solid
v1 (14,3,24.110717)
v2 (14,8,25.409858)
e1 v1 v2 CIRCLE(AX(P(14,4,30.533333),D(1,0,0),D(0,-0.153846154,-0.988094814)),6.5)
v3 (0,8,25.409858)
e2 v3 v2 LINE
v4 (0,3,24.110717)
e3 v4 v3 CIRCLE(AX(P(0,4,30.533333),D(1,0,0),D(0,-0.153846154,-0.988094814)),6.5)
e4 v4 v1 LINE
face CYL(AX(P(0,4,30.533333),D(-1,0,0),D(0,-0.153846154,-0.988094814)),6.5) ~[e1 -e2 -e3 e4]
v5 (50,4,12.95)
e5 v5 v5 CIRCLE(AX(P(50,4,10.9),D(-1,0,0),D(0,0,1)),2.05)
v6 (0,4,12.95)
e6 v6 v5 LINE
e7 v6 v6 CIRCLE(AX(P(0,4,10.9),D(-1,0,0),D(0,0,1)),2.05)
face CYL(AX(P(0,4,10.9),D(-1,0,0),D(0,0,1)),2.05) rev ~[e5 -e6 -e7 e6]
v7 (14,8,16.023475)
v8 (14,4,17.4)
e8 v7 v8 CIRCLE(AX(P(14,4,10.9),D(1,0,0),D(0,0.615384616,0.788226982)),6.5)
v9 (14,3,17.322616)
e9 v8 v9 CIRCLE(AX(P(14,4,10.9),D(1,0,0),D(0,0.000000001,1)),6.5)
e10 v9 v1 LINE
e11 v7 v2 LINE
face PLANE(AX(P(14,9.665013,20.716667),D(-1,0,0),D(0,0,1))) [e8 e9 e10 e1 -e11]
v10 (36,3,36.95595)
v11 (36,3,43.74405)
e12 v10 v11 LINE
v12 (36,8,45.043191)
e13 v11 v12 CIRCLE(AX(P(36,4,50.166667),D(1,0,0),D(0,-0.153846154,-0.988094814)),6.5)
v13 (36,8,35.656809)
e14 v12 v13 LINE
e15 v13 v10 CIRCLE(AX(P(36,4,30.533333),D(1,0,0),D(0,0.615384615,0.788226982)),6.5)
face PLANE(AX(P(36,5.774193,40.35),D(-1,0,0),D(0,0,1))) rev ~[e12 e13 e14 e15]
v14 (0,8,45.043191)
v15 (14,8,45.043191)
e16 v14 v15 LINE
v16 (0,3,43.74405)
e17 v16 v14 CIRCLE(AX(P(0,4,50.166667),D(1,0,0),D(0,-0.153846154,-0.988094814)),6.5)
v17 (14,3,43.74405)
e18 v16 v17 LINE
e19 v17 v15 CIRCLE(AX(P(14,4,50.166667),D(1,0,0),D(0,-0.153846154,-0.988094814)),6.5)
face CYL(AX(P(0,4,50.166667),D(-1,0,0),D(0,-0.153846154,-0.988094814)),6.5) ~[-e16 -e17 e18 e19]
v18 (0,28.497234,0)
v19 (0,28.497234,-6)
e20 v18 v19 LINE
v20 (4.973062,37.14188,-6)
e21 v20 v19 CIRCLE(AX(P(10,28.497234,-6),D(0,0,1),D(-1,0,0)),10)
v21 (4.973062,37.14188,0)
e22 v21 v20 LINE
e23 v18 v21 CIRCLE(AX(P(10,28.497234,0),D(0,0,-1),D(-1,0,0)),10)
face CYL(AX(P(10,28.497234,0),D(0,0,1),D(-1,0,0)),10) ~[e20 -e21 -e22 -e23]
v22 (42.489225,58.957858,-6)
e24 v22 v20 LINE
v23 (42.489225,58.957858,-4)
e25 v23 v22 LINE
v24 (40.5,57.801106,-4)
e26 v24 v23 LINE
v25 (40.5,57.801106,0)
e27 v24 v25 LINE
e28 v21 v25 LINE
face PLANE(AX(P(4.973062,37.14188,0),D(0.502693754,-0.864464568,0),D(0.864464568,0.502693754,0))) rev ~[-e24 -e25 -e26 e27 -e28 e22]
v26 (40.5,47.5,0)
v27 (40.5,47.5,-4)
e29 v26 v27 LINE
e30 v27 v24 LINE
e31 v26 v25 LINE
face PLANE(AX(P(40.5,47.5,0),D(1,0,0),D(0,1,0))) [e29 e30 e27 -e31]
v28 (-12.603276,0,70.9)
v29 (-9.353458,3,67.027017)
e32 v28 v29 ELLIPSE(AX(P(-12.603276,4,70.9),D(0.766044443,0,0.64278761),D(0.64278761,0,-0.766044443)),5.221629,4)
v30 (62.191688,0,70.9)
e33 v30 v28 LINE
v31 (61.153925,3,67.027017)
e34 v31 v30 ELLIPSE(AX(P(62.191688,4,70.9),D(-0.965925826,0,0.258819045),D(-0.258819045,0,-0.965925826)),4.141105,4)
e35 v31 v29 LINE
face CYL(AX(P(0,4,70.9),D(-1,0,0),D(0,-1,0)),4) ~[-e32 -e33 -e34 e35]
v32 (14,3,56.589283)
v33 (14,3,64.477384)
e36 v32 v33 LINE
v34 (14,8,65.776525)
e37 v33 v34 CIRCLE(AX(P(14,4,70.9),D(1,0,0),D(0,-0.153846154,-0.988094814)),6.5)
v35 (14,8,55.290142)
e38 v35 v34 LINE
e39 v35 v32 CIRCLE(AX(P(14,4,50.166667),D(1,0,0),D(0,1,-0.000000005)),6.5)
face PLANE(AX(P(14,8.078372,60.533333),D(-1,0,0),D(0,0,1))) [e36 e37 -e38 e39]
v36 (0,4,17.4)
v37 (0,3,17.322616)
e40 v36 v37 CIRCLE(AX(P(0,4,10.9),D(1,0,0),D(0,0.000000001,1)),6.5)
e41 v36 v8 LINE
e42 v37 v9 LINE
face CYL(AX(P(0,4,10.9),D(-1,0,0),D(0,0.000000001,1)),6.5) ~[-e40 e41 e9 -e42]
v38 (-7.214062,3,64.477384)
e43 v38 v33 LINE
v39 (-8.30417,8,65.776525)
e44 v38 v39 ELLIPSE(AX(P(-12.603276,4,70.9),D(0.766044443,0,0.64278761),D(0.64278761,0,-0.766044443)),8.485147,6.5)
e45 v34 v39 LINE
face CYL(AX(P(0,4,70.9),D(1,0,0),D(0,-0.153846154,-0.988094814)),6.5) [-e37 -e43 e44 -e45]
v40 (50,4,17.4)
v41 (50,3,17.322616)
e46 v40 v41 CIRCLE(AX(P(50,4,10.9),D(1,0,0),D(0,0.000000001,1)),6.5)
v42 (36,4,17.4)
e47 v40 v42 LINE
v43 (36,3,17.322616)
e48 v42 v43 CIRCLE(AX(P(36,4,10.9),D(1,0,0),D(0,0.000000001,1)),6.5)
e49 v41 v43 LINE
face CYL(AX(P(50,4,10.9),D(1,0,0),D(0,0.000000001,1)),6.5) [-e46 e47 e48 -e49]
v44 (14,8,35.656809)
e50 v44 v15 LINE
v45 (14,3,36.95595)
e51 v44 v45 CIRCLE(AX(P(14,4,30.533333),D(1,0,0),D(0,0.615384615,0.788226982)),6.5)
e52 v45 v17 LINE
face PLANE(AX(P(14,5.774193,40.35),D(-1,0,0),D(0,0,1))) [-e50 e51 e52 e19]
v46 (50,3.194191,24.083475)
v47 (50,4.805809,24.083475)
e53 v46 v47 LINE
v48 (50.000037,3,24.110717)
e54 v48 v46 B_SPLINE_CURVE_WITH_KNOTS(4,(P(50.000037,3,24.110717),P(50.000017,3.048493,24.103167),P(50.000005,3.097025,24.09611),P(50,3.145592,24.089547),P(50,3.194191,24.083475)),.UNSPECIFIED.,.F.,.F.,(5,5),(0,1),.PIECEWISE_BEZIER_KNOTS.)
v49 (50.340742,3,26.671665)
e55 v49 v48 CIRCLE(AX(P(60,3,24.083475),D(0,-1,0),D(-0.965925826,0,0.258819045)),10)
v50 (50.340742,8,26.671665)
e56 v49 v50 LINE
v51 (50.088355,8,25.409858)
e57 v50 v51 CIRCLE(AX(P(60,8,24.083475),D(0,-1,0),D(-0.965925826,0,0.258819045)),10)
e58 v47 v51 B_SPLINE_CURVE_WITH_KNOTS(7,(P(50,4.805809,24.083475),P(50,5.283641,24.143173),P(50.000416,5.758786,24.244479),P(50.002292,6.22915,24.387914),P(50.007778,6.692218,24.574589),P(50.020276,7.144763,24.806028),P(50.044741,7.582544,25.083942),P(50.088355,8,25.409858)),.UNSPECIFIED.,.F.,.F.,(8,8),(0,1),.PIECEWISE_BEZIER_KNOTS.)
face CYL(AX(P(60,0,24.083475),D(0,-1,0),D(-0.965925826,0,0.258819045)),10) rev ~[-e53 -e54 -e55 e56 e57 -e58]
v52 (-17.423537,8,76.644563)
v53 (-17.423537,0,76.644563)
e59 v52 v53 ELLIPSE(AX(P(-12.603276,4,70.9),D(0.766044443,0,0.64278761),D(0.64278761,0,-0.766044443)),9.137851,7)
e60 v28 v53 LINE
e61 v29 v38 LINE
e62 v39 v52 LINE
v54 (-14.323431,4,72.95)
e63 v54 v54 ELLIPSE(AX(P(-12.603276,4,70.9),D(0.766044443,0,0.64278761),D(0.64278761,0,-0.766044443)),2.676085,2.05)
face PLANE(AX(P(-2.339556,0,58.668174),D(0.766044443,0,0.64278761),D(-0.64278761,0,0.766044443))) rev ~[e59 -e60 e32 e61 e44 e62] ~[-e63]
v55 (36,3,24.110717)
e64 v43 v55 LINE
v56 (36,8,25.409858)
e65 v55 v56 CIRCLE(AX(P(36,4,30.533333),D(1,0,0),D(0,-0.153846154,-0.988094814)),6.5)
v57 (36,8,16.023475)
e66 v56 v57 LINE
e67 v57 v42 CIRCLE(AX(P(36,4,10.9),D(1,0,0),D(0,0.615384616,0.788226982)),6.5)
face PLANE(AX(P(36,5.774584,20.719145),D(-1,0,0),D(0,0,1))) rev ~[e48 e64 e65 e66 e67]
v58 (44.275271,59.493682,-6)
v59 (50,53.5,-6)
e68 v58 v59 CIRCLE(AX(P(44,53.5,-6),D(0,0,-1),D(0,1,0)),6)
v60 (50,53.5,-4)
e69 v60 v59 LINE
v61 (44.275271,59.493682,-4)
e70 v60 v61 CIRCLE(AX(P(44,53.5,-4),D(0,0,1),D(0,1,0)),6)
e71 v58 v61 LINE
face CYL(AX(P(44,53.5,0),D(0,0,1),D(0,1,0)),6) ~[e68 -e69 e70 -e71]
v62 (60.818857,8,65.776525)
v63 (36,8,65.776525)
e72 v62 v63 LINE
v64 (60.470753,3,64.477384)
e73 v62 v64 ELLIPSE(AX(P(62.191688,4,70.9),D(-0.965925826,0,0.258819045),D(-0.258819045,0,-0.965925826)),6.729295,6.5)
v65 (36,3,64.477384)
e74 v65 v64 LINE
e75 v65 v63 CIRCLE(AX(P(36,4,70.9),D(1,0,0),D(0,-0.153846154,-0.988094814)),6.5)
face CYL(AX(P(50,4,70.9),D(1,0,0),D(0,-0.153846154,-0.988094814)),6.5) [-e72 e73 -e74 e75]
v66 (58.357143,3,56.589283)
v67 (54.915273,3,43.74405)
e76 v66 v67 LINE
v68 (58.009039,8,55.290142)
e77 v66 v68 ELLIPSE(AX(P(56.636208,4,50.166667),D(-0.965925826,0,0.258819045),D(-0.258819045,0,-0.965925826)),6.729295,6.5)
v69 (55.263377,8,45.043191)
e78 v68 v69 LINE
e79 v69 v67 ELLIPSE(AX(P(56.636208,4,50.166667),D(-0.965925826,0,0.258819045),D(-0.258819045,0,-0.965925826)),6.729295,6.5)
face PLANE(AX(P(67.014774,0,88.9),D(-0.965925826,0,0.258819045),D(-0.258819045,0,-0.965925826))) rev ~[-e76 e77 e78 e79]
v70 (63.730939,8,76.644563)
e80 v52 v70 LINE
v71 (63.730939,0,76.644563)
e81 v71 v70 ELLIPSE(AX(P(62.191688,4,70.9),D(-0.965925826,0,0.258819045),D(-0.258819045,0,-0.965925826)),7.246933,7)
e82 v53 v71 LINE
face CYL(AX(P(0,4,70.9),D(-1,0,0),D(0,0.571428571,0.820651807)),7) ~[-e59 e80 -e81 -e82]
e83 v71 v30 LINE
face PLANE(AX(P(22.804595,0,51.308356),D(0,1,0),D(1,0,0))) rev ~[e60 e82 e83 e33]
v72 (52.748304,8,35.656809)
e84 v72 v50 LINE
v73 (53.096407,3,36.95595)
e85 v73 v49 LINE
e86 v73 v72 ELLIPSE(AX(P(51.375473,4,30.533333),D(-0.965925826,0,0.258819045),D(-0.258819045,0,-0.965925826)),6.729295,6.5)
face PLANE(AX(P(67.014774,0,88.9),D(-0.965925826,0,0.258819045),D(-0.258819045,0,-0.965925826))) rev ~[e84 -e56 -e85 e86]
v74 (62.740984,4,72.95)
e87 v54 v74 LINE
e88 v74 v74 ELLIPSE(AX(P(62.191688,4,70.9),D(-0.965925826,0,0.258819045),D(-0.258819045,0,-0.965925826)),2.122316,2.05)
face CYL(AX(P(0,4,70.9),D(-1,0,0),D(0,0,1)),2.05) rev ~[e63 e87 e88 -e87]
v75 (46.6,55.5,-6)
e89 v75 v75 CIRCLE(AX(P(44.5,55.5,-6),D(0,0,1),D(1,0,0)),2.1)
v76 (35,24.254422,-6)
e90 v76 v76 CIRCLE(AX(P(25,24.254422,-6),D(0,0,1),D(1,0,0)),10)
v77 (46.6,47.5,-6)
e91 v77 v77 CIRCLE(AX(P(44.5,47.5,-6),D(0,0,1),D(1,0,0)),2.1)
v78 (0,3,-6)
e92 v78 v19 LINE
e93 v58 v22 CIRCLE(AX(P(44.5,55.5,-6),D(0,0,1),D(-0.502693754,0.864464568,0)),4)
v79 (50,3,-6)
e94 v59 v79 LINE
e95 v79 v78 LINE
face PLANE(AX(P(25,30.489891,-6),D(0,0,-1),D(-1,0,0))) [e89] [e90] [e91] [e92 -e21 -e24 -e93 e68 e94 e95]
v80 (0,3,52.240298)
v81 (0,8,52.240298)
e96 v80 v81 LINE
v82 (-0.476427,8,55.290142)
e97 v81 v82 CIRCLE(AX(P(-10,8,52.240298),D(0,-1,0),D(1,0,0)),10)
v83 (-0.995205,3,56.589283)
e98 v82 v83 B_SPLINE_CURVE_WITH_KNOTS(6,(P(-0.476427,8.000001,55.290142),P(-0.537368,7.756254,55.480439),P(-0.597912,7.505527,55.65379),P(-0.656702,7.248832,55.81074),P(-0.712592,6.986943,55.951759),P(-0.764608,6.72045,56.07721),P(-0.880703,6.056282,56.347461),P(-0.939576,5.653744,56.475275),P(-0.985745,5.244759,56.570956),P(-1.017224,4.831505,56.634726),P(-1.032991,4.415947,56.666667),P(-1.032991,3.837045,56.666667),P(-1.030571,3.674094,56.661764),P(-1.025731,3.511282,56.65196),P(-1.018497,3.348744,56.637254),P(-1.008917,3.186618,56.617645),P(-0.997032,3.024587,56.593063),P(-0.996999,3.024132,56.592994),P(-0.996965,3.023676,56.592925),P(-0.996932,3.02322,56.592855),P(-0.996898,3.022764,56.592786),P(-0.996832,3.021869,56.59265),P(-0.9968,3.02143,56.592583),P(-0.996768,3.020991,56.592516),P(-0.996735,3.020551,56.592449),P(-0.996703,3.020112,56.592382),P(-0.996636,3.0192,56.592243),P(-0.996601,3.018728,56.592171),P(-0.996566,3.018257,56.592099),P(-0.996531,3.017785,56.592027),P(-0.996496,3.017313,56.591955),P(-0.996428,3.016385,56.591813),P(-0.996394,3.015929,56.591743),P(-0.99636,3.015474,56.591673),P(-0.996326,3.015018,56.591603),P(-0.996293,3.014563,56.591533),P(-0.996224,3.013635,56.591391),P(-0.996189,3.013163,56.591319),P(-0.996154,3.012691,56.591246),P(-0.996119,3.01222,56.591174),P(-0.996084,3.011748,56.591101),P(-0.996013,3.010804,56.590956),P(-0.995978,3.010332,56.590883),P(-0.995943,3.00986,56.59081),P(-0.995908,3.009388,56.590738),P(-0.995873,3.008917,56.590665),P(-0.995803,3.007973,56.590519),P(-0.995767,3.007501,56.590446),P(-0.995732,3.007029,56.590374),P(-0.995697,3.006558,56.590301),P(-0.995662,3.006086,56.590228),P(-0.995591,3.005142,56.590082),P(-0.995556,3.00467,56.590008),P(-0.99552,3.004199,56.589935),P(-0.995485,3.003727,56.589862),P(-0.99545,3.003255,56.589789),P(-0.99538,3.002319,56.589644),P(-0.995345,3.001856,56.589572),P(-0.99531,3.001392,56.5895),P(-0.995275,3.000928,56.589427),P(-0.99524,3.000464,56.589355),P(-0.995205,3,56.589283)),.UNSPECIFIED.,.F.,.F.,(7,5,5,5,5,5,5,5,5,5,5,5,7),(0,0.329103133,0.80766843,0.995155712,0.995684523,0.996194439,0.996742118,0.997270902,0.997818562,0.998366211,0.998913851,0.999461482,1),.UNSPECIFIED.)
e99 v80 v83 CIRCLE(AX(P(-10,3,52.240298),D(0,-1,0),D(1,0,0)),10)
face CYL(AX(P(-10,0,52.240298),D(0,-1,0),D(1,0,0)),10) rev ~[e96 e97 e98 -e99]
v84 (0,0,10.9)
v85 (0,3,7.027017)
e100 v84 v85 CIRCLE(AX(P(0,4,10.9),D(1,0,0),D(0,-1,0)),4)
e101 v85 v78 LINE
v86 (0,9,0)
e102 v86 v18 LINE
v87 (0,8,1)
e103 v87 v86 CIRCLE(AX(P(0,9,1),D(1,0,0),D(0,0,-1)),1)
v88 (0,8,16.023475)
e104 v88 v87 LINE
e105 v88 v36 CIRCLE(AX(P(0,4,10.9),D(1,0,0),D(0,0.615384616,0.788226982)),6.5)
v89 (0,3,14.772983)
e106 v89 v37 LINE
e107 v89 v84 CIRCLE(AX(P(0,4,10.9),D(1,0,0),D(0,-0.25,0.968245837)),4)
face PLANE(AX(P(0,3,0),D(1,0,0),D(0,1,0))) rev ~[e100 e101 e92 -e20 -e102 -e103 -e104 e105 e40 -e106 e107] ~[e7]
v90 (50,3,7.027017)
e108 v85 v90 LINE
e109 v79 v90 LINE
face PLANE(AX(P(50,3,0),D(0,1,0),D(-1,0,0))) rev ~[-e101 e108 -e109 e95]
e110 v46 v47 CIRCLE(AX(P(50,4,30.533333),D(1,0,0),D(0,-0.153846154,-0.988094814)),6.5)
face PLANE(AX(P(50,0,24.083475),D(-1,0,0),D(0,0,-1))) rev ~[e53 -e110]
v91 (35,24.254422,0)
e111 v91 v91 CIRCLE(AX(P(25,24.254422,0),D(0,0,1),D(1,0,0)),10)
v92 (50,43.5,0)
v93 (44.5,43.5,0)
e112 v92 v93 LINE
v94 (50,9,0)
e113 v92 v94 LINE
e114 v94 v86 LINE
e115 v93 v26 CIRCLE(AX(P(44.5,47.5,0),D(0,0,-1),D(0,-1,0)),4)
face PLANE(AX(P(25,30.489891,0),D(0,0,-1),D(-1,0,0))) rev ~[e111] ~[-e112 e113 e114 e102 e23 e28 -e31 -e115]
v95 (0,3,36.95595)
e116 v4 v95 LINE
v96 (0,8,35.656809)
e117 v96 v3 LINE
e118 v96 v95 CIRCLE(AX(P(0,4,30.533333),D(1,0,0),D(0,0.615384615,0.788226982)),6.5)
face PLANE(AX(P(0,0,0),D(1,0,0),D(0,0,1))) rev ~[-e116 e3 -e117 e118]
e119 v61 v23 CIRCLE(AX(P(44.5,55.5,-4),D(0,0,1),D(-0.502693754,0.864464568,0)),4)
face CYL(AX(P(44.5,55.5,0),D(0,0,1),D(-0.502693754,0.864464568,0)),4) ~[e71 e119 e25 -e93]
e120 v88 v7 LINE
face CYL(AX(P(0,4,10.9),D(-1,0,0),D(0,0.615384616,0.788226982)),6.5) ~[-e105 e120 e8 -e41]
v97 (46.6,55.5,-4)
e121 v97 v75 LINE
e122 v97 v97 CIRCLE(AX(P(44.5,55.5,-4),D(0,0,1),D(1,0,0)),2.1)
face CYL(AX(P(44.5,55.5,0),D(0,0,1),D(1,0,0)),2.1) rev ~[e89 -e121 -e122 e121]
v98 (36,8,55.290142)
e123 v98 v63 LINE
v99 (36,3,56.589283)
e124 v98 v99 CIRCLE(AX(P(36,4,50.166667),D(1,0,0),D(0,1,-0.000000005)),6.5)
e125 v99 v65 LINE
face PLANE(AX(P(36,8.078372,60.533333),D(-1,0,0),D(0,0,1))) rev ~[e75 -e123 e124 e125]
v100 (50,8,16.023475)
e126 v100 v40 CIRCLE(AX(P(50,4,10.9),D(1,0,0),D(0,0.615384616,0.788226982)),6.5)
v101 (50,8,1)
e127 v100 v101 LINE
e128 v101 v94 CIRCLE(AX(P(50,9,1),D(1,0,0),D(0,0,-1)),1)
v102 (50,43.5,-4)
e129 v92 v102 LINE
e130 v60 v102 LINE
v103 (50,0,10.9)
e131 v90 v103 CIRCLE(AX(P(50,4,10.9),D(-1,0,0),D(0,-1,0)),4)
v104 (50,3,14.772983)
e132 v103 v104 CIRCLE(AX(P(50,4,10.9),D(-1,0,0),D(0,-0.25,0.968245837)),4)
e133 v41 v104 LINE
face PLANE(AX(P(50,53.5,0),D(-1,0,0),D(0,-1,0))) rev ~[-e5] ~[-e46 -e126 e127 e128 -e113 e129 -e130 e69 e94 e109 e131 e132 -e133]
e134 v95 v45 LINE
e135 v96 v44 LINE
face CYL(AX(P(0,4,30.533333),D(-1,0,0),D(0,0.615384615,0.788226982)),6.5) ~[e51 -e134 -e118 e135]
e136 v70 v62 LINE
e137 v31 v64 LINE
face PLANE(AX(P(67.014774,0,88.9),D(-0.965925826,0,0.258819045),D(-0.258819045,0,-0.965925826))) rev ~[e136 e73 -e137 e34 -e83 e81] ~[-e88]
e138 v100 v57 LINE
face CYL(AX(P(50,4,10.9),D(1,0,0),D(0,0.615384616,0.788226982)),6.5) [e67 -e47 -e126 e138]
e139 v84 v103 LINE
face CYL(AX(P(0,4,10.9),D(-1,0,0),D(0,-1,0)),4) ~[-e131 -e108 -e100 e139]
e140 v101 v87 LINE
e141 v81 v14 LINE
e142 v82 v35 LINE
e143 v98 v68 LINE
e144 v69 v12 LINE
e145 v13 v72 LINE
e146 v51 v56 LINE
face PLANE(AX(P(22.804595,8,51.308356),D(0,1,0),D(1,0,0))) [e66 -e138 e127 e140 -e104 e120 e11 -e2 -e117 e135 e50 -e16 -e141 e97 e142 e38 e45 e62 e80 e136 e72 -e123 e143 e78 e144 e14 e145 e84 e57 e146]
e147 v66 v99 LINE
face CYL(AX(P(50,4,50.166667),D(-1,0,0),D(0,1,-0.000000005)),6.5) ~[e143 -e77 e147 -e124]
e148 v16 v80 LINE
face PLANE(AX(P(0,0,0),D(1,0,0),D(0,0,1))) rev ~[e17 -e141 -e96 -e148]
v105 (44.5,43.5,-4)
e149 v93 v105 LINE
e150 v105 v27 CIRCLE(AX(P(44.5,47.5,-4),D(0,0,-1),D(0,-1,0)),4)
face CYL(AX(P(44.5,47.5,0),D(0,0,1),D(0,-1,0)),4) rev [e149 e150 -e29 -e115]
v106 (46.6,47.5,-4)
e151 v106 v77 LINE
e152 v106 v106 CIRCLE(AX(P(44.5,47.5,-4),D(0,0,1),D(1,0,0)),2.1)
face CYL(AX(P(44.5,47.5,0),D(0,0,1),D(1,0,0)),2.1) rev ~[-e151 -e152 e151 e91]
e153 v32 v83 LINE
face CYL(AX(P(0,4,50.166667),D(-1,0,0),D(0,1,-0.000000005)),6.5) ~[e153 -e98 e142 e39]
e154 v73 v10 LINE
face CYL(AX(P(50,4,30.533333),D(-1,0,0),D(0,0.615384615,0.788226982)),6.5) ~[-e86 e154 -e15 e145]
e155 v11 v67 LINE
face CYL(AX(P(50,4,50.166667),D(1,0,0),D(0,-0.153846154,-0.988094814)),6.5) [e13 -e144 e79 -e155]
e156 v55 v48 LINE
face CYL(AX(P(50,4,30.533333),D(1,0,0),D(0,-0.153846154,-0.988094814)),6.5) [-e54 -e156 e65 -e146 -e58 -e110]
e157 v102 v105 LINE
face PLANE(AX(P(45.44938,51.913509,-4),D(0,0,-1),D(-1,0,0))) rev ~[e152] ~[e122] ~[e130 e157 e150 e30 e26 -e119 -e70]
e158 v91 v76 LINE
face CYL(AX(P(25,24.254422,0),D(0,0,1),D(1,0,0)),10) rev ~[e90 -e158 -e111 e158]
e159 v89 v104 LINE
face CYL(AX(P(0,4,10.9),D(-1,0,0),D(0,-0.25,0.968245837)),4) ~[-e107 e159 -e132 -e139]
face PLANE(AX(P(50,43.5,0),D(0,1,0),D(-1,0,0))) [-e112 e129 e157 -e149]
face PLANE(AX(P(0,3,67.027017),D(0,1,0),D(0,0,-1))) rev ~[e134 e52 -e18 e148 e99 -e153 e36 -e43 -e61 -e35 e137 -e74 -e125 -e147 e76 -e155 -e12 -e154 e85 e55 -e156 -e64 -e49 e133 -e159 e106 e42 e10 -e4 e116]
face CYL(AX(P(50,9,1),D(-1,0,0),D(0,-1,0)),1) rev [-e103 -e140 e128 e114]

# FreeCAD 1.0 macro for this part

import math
import FreeCAD as App
import Part
import Sketcher
from FreeCAD import Vector
Q = App.Units.Quantity


def edges_at(feature, points):
    """Names of the edges that pass closest to the given points."""
    edges = feature.Shape.Edges
    near = lambda p: min(range(len(edges)), key=lambda i: edges[i].distToShape(Part.Vertex(*p))[0])
    return sorted({f"Edge{near(p) + 1}" for p in points})

doc = App.newDocument("Part")
body = doc.addObject("PartDesign::Body", "Body")

# Sketch on XZ plane
sketch1 = doc.addObject("Sketcher::SketchObject", "Sketch")
body.addObject(sketch1)
sketch1.AttachmentSupport = (doc.XZ_Plane, [""])
sketch1.MapMode = "FlatFace"
sketch1.addGeometry([
    Part.LineSegment(Vector(0, 0, 0), Vector(0, 52.2, 0)),  # 0
    Part.ArcOfCircle(Part.Circle(Vector(-10, 52.2, 0), Vector(0, 0, 1), 10), math.radians(0), math.radians(40)),  # 1
    Part.LineSegment(Vector(-2.3, 58.7, 0), Vector(-27.7, 88.9, 0)),  # 2
    Part.LineSegment(Vector(-27.7, 88.9, 0), Vector(67, 88.9, 0)),  # 3
    Part.LineSegment(Vector(67, 88.9, 0), Vector(50.3, 26.7, 0)),  # 4
    Part.ArcOfCircle(Part.Circle(Vector(60, 24.1, 0), Vector(0, 0, 1), 10), math.radians(165), math.radians(180)),  # 5
    Part.LineSegment(Vector(50, 24.1, 0), Vector(50, 0, 0)),  # 6
    Part.LineSegment(Vector(50, 0, 0), Vector(0, 0, 0)),  # 7
], False)
sketch1.addConstraint([
    Sketcher.Constraint("Tangent", 0, 2, 1, 1),
    Sketcher.Constraint("Tangent", 1, 2, 2, 1),
    Sketcher.Constraint("Coincident", 2, 2, 3, 1),
    Sketcher.Constraint("Coincident", 3, 2, 4, 1),
    Sketcher.Constraint("Tangent", 4, 2, 5, 1),
    Sketcher.Constraint("Tangent", 5, 2, 6, 1),
    Sketcher.Constraint("Coincident", 6, 2, 7, 1),
    Sketcher.Constraint("Coincident", 7, 2, 0, 1),
    Sketcher.Constraint("Vertical", 0),
    Sketcher.Constraint("Horizontal", 3),
    Sketcher.Constraint("Vertical", 6),
    Sketcher.Constraint("Horizontal", 7),
    Sketcher.Constraint("Coincident", 7, 2, -1, 1),
    Sketcher.Constraint("Equal", 1, 5),
    Sketcher.Constraint("Radius", 1, 10.0),
    Sketcher.Constraint("DistanceX", 7, 2, 7, 1, 50.0),
    Sketcher.Constraint("Angle", 2, Q("130 deg")),
    Sketcher.Constraint("Angle", 4, Q("-105 deg")),
    Sketcher.Constraint("DistanceY", -1, 1, 2, 2, 88.9),
    Sketcher.Constraint("DistanceY", 5, 3, 1, 2, 34.584699),
    Sketcher.Constraint("DistanceX", 3, 1, 3, 2, 94.721844),
])
pad1 = doc.addObject("PartDesign::Pad", "Pad")
body.addObject(pad1)
pad1.Profile = sketch1
pad1.Length = 8
pad1.Reversed = True

# Sketch on YZ plane
sketch2 = doc.addObject("Sketcher::SketchObject", "Sketch001")
body.addObject(sketch2)
sketch2.AttachmentSupport = (doc.YZ_Plane, [""])
sketch2.MapMode = "FlatFace"
sketch2.addGeometry([
    Part.Circle(Vector(4, 10.9, 0), Vector(0, 0, 1), 2),
    Part.Circle(Vector(4, 70.9, 0), Vector(0, 0, 1), 2),
], False)
sketch2.addConstraint([
    Sketcher.Constraint("Equal", 0, 1),
    Sketcher.Constraint("Vertical", 0, 3, 1, 3),
    Sketcher.Constraint("Diameter", 0, 4.1),
    Sketcher.Constraint("DistanceX", -1, 1, 0, 3, 4.0),
    Sketcher.Constraint("DistanceY", 0, 3, 1, 3, 60.0),
    Sketcher.Constraint("DistanceY", -1, 1, 0, 3, 10.9),
])
pocket1 = doc.addObject("PartDesign::Pocket", "Pocket")
body.addObject(pocket1)
pocket1.Profile = sketch2
pocket1.Type = "ThroughAll"
pocket1.Midplane = True

# Sketch on YZ plane
sketch3 = doc.addObject("Sketcher::SketchObject", "Sketch002")
body.addObject(sketch3)
sketch3.AttachmentSupport = (doc.YZ_Plane, [""])
sketch3.MapMode = "FlatFace"
sketch3.addGeometry([
    Part.LineSegment(Vector(3, 67, 0), Vector(3, 14.8, 0)),  # 0
    Part.ArcOfCircle(Part.Circle(Vector(4, 10.9, 0), Vector(0, 0, 1), 4), math.radians(104), math.radians(180)),  # 1
    Part.LineSegment(Vector(0, 10.9, 0), Vector(0, 70.9, 0)),  # 2
    Part.ArcOfCircle(Part.Circle(Vector(4, 70.9, 0), Vector(0, 0, 1), 4), math.radians(180), math.radians(256)),  # 3
    Part.LineSegment(Vector(0, 0, 0), Vector(0, 10.9, 0)),  # 4
    Part.ArcOfCircle(Part.Circle(Vector(4, 10.9, 0), Vector(0, 0, 1), 4), math.radians(180), math.radians(256)),  # 5
    Part.LineSegment(Vector(3, 7, 0), Vector(3, 0, 0)),  # 6
    Part.LineSegment(Vector(3, 0, 0), Vector(0, 0, 0)),  # 7
    Part.ArcOfCircle(Part.Circle(Vector(4, 70.9, 0), Vector(0, 0, 1), 7), math.radians(55), math.radians(125)),  # 8
    Part.LineSegment(Vector(0, 76.6, 0), Vector(0, 88.9, 0)),  # 9
    Part.LineSegment(Vector(0, 88.9, 0), Vector(8, 88.9, 0)),  # 10
    Part.LineSegment(Vector(8, 88.9, 0), Vector(8, 76.6, 0)),  # 11
], False)
sketch3.addConstraint([
    Sketcher.Constraint("Coincident", 0, 2, 1, 1),
    Sketcher.Constraint("Tangent", 1, 2, 2, 1),
    Sketcher.Constraint("Tangent", 2, 2, 3, 1),
    Sketcher.Constraint("Coincident", 3, 2, 0, 1),
    Sketcher.Constraint("Tangent", 4, 2, 5, 1),
    Sketcher.Constraint("Coincident", 5, 2, 6, 1),
    Sketcher.Constraint("Coincident", 6, 2, 7, 1),
    Sketcher.Constraint("Coincident", 7, 2, 4, 1),
    Sketcher.Constraint("Coincident", 8, 2, 9, 1),
    Sketcher.Constraint("Coincident", 9, 2, 10, 1),
    Sketcher.Constraint("Coincident", 10, 2, 11, 1),
    Sketcher.Constraint("Coincident", 11, 2, 8, 1),
    Sketcher.Constraint("Vertical", 0),
    Sketcher.Constraint("Vertical", 2),
    Sketcher.Constraint("Vertical", 4),
    Sketcher.Constraint("Vertical", 6),
    Sketcher.Constraint("Horizontal", 7),
    Sketcher.Constraint("Vertical", 9),
    Sketcher.Constraint("Horizontal", 10),
    Sketcher.Constraint("Vertical", 11),
    Sketcher.Constraint("Coincident", 7, 2, -1, 1),
    Sketcher.Constraint("Coincident", 5, 3, 1, 3),
    Sketcher.Constraint("Coincident", 8, 3, 3, 3),
    Sketcher.Constraint("Equal", 1, 3),
    Sketcher.Constraint("Equal", 3, 5),
    Sketcher.Constraint("PointOnObject", 8, 2, -2),
    Sketcher.Constraint("Horizontal", 8, 2, 11, 2),
    Sketcher.Constraint("Vertical", 3, 2, 5, 2),
    Sketcher.Constraint("Radius", 1, 4.0),
    Sketcher.Constraint("Radius", 8, 7.0),
    Sketcher.Constraint("DistanceX", 7, 2, 7, 1, 3.0),
    Sketcher.Constraint("DistanceY", 2, 1, 2, 2, 60.0),
    Sketcher.Constraint("DistanceY", 4, 1, 4, 2, 10.9),
    Sketcher.Constraint("DistanceY", 2, 2, 9, 2, 18.0),
])
pocket2 = doc.addObject("PartDesign::Pocket", "Pocket001")
body.addObject(pocket2)
pocket2.Profile = sketch3
pocket2.Type = "ThroughAll"
pocket2.Midplane = True

# Sketch on YZ plane
sketch4 = doc.addObject("Sketcher::SketchObject", "Sketch003")
body.addObject(sketch4)
sketch4.AttachmentSupport = (doc.YZ_Plane, [""])
sketch4.MapMode = "FlatFace"
sketch4.addGeometry([
    Part.LineSegment(Vector(10.5, 30.5, 0), Vector(10.5, 10.9, 0)),  # 0
    Part.ArcOfCircle(Part.Circle(Vector(4, 10.9, 0), Vector(0, 0, 1), 6.5), math.radians(0), math.radians(52)),  # 1
    Part.ArcOfCircle(Part.Circle(Vector(4, 10.9, 0), Vector(0, 0, 1), 6.5), math.radians(52), math.radians(90)),  # 2
    Part.ArcOfCircle(Part.Circle(Vector(4, 10.9, 0), Vector(0, 0, 1), 6.5), math.radians(90), math.radians(98.85)),  # 3
    Part.LineSegment(Vector(3, 17.3, 0), Vector(3, 24.1, 0)),  # 4
    Part.ArcOfCircle(Part.Circle(Vector(4, 30.5, 0), Vector(0, 0, 1), 6.5), math.radians(-99), math.radians(-52)),  # 5
    Part.ArcOfCircle(Part.Circle(Vector(4, 30.5, 0), Vector(0, 0, 1), 6.5), math.radians(-52), math.radians(0)),  # 6
    Part.ArcOfCircle(Part.Circle(Vector(4, 30.5, 0), Vector(0, 0, 1), 6.5), math.radians(52), math.radians(99)),  # 7
    Part.LineSegment(Vector(3, 37, 0), Vector(3, 43.7, 0)),  # 8
    Part.ArcOfCircle(Part.Circle(Vector(4, 50.2, 0), Vector(0, 0, 1), 6.5), math.radians(-99), math.radians(-52)),  # 9
    Part.ArcOfCircle(Part.Circle(Vector(4, 50.2, 0), Vector(0, 0, 1), 6.5), math.radians(-52), math.radians(0)),  # 10
    Part.LineSegment(Vector(10.5, 50.2, 0), Vector(10.5, 30.5, 0)),  # 11
    Part.ArcOfCircle(Part.Circle(Vector(4, 30.5, 0), Vector(0, 0, 1), 6.5), math.radians(0), math.radians(52)),  # 12
    Part.LineSegment(Vector(10.5, 70.9, 0), Vector(10.5, 50.2, 0)),  # 13
    Part.ArcOfCircle(Part.Circle(Vector(4, 50.2, 0), Vector(0, 0, 1), 6.5), math.radians(0), math.radians(99)),  # 14
    Part.LineSegment(Vector(3, 56.6, 0), Vector(3, 64.5, 0)),  # 15
    Part.ArcOfCircle(Part.Circle(Vector(4, 70.9, 0), Vector(0, 0, 1), 6.5), math.radians(-99), math.radians(0)),  # 16
], False)
sketch4.addConstraint([
    Sketcher.Constraint("Tangent", 0, 2, 1, 1),
    Sketcher.Constraint("Tangent", 1, 2, 2, 1),
    Sketcher.Constraint("Tangent", 2, 2, 3, 1),
    Sketcher.Constraint("Coincident", 3, 2, 4, 1),
    Sketcher.Constraint("Coincident", 4, 2, 5, 1),
    Sketcher.Constraint("Tangent", 5, 2, 6, 1),
    Sketcher.Constraint("Tangent", 6, 2, 0, 1),
    Sketcher.Constraint("Coincident", 7, 2, 8, 1),
    Sketcher.Constraint("Coincident", 8, 2, 9, 1),
    Sketcher.Constraint("Tangent", 9, 2, 10, 1),
    Sketcher.Constraint("Tangent", 10, 2, 11, 1),
    Sketcher.Constraint("Tangent", 11, 2, 12, 1),
    Sketcher.Constraint("Tangent", 12, 2, 7, 1),
    Sketcher.Constraint("Tangent", 13, 2, 14, 1),
    Sketcher.Constraint("Coincident", 14, 2, 15, 1),
    Sketcher.Constraint("Coincident", 15, 2, 16, 1),
    Sketcher.Constraint("Tangent", 16, 2, 13, 1),
    Sketcher.Constraint("Vertical", 0),
    Sketcher.Constraint("Vertical", 4),
    Sketcher.Constraint("Vertical", 8),
    Sketcher.Constraint("Vertical", 11),
    Sketcher.Constraint("Vertical", 13),
    Sketcher.Constraint("Vertical", 15),
    Sketcher.Constraint("Coincident", 3, 3, 1, 3),
    Sketcher.Constraint("Coincident", 7, 3, 5, 3),
    Sketcher.Constraint("Coincident", 14, 3, 9, 3),
    Sketcher.Constraint("Coincident", 11, 2, 6, 2),
    Sketcher.Constraint("Coincident", 13, 2, 10, 2),
    Sketcher.Constraint("Equal", 3, 5),
    Sketcher.Constraint("Equal", 5, 6),
    Sketcher.Constraint("Equal", 7, 9),
    Sketcher.Constraint("Equal", 14, 16),
    Sketcher.Constraint("Vertical", 16, 3, 2, 2),
    Sketcher.Constraint("Vertical", 1, 2, 5, 2),
    Sketcher.Constraint("Vertical", 4, 2, 7, 2),
    Sketcher.Constraint("Vertical", 5, 2, 9, 2),
    Sketcher.Constraint("Vertical", 9, 2, 12, 2),
    Sketcher.Constraint("Vertical", 8, 2, 14, 2),
    Sketcher.Constraint("Equal", 4, 8),
    Sketcher.Constraint("Radius", 1, 6.5),
    Sketcher.Constraint("DistanceX", -1, 1, 1, 3, 4.0),
    Sketcher.Constraint("DistanceX", -1, 1, 1, 2, 8.0),
    Sketcher.Constraint("DistanceX", -1, 1, 3, 2, 3.0),
    Sketcher.Constraint("DistanceY", -1, 1, 1, 3, 10.9),
    Sketcher.Constraint("DistanceY", -1, 1, 16, 3, 70.9),
    Sketcher.Constraint("DistanceY", 4, 1, 4, 2, 6.788101),
])
pocket3 = doc.addObject("PartDesign::Pocket", "Pocket002")
body.addObject(pocket3)
pocket3.Profile = sketch4
pocket3.Type = "TwoLengths"
pocket3.Length = 19.476974
pocket3.Length2 = 14

# Sketch on YZ plane
sketch5 = doc.addObject("Sketcher::SketchObject", "Sketch004")
body.addObject(sketch5)
sketch5.AttachmentSupport = (doc.YZ_Plane, [""])
sketch5.MapMode = "FlatFace"
sketch5.AttachmentOffset = App.Placement(Vector(0, 0, 50), App.Rotation())
sketch5.addGeometry([
    Part.LineSegment(Vector(8, 25.4, 0), Vector(8, 16, 0)),  # 0
    Part.ArcOfCircle(Part.Circle(Vector(4, 10.9, 0), Vector(0, 0, 1), 6.5), math.radians(52), math.radians(90)),  # 1
    Part.ArcOfCircle(Part.Circle(Vector(4, 10.9, 0), Vector(0, 0, 1), 6.5), math.radians(90), math.radians(98.85)),  # 2
    Part.LineSegment(Vector(3, 17.3, 0), Vector(3, 24.1, 0)),  # 3
    Part.ArcOfCircle(Part.Circle(Vector(4, 30.5, 0), Vector(0, 0, 1), 6.5), math.radians(-99), math.radians(-52)),  # 4
    Part.LineSegment(Vector(8, 45, 0), Vector(8, 35.7, 0)),  # 5
    Part.ArcOfCircle(Part.Circle(Vector(4, 30.5, 0), Vector(0, 0, 1), 6.5), math.radians(52), math.radians(99)),  # 6
    Part.LineSegment(Vector(3, 37, 0), Vector(3, 43.7, 0)),  # 7
    Part.ArcOfCircle(Part.Circle(Vector(4, 50.2, 0), Vector(0, 0, 1), 6.5), math.radians(-99), math.radians(-52)),  # 8
    Part.LineSegment(Vector(10.5, 70.9, 0), Vector(10.5, 50.2, 0)),  # 9
    Part.ArcOfCircle(Part.Circle(Vector(4, 50.2, 0), Vector(0, 0, 1), 6.5), math.radians(0), math.radians(99)),  # 10
    Part.LineSegment(Vector(3, 56.6, 0), Vector(3, 64.5, 0)),  # 11
    Part.ArcOfCircle(Part.Circle(Vector(4, 70.9, 0), Vector(0, 0, 1), 6.5), math.radians(-99), math.radians(0)),  # 12
], False)
sketch5.addConstraint([
    Sketcher.Constraint("Coincident", 0, 2, 1, 1),
    Sketcher.Constraint("Tangent", 1, 2, 2, 1),
    Sketcher.Constraint("Coincident", 2, 2, 3, 1),
    Sketcher.Constraint("Coincident", 3, 2, 4, 1),
    Sketcher.Constraint("Coincident", 4, 2, 0, 1),
    Sketcher.Constraint("Coincident", 5, 2, 6, 1),
    Sketcher.Constraint("Coincident", 6, 2, 7, 1),
    Sketcher.Constraint("Coincident", 7, 2, 8, 1),
    Sketcher.Constraint("Coincident", 8, 2, 5, 1),
    Sketcher.Constraint("Tangent", 9, 2, 10, 1),
    Sketcher.Constraint("Coincident", 10, 2, 11, 1),
    Sketcher.Constraint("Coincident", 11, 2, 12, 1),
    Sketcher.Constraint("Tangent", 12, 2, 9, 1),
    Sketcher.Constraint("Vertical", 0),
    Sketcher.Constraint("Vertical", 3),
    Sketcher.Constraint("Vertical", 5),
    Sketcher.Constraint("Vertical", 7),
    Sketcher.Constraint("Vertical", 9),
    Sketcher.Constraint("Vertical", 11),
    Sketcher.Constraint("Coincident", 6, 3, 4, 3),
    Sketcher.Constraint("Coincident", 10, 3, 8, 3),
    Sketcher.Constraint("Equal", 1, 2),
    Sketcher.Constraint("Equal", 2, 4),
    Sketcher.Constraint("Equal", 4, 6),
    Sketcher.Constraint("Equal", 6, 8),
    Sketcher.Constraint("Equal", 8, 10),
    Sketcher.Constraint("Equal", 10, 12),
    Sketcher.Constraint("Vertical", 2, 3, 4, 3),
    Sketcher.Constraint("Vertical", 6, 3, 8, 3),
    Sketcher.Constraint("Vertical", 12, 3, 1, 2),
    Sketcher.Constraint("Vertical", 4, 2, 5, 2),
    Sketcher.Constraint("Vertical", 3, 2, 6, 2),
    Sketcher.Constraint("Vertical", 7, 2, 10, 2),
    Sketcher.Constraint("Equal", 0, 5),
    Sketcher.Constraint("Radius", 1, 6.5),
    Sketcher.Constraint("DistanceX", -1, 1, 1, 3, 4.0),
    Sketcher.Constraint("DistanceX", -1, 1, 0, 2, 8.0),
    Sketcher.Constraint("DistanceX", -1, 1, 2, 2, 3.0),
    Sketcher.Constraint("DistanceY", 2, 3, 12, 3, 60.0),
    Sketcher.Constraint("DistanceY", -1, 1, 1, 3, 10.9),
    Sketcher.Constraint("DistanceY", 3, 1, 3, 2, 6.788101),
])
pocket4 = doc.addObject("PartDesign::Pocket", "Pocket003")
body.addObject(pocket4)
pocket4.Profile = sketch5
pocket4.Type = "TwoLengths"
pocket4.Length = 14
pocket4.Length2 = 15.067333

# Sketch on XY plane
sketch6 = doc.addObject("Sketcher::SketchObject", "Sketch005")
body.addObject(sketch6)
sketch6.AttachmentSupport = (doc.XY_Plane, [""])
sketch6.MapMode = "FlatFace"
sketch6.addGeometry([
    Part.LineSegment(Vector(50, 3, 0), Vector(0, 3, 0)),  # 0
    Part.LineSegment(Vector(0, 3, 0), Vector(0, 54, 0)),  # 1
    Part.ArcOfCircle(Part.Circle(Vector(6, 54, 0), Vector(0, 0, 1), 6), math.radians(90), math.radians(180)),  # 2
    Part.LineSegment(Vector(6, 60, 0), Vector(44, 60, 0)),  # 3
    Part.ArcOfCircle(Part.Circle(Vector(44, 54, 0), Vector(0, 0, 1), 6), math.radians(0), math.radians(90)),  # 4
    Part.LineSegment(Vector(50, 54, 0), Vector(50, 3, 0)),  # 5
], False)
sketch6.addConstraint([
    Sketcher.Constraint("Coincident", 0, 2, 1, 1),
    Sketcher.Constraint("Tangent", 1, 2, 2, 2),
    Sketcher.Constraint("Tangent", 2, 1, 3, 1),
    Sketcher.Constraint("Tangent", 3, 2, 4, 2),
    Sketcher.Constraint("Tangent", 4, 1, 5, 1),
    Sketcher.Constraint("Coincident", 5, 2, 0, 1),
    Sketcher.Constraint("Horizontal", 0),
    Sketcher.Constraint("Vertical", 1),
    Sketcher.Constraint("Horizontal", 3),
    Sketcher.Constraint("Vertical", 5),
    Sketcher.Constraint("Equal", 2, 4),
    Sketcher.Constraint("PointOnObject", 0, 2, -2),
    Sketcher.Constraint("Radius", 2, 6.0),
    Sketcher.Constraint("DistanceX", 0, 2, 0, 1, 50.0),
    Sketcher.Constraint("DistanceY", 1, 1, 1, 2, 50.5),
    Sketcher.Constraint("DistanceY", -1, 1, 0, 2, 3.0),
])
pad2 = doc.addObject("PartDesign::Pad", "Pad001")
body.addObject(pad2)
pad2.Profile = sketch6
pad2.Length = 6
pad2.Reversed = True
doc.recompute()

fillet = doc.addObject("PartDesign::Fillet", "Fillet")
body.addObject(fillet)
fillet.Base = (pad2, edges_at(pad2, [(25, 8, 0)]))
fillet.Radius = 1

# Sketch on XY plane
sketch7 = doc.addObject("Sketcher::SketchObject", "Sketch006")
body.addObject(sketch7)
sketch7.AttachmentSupport = (doc.XY_Plane, [""])
sketch7.MapMode = "FlatFace"
sketch7.addGeometry([
    Part.ArcOfCircle(Part.Circle(Vector(10, 28.5, 0), Vector(0, 0, 1), 10), math.radians(120), math.radians(180)),  # 0
    Part.LineSegment(Vector(5, 37.1, 0), Vector(42.5, 59, 0)),  # 1
    Part.ArcOfCircle(Part.Circle(Vector(44.5, 55.5, 0), Vector(0, 0, 1), 4), math.radians(90), math.radians(120)),  # 2
    Part.LineSegment(Vector(44.5, 59.5, 0), Vector(0, 59.5, 0)),  # 3
    Part.LineSegment(Vector(0, 59.5, 0), Vector(0, 28.5, 0)),  # 4
    Part.Circle(Vector(44.5, 47.5, 0), Vector(0, 0, 1), 2.1),  # 5
    Part.Circle(Vector(44.5, 55.5, 0), Vector(0, 0, 1), 2.1),  # 6
    Part.Circle(Vector(25, 24.3, 0), Vector(0, 0, 1), 10),  # 7
], False)
sketch7.addConstraint([
    Sketcher.Constraint("Tangent", 0, 1, 1, 1),
    Sketcher.Constraint("Tangent", 1, 2, 2, 2),
    Sketcher.Constraint("Tangent", 2, 1, 3, 1),
    Sketcher.Constraint("Coincident", 3, 2, 4, 1),
    Sketcher.Constraint("Tangent", 4, 2, 0, 2),
    Sketcher.Constraint("Horizontal", 3),
    Sketcher.Constraint("Vertical", 4),
    Sketcher.Constraint("Coincident", 6, 3, 2, 3),
    Sketcher.Constraint("Equal", 5, 6),
    Sketcher.Constraint("Equal", 0, 7),
    Sketcher.Constraint("PointOnObject", 3, 2, -2),
    Sketcher.Constraint("Vertical", 2, 3, 5, 3),
    Sketcher.Constraint("Diameter", 7, 20.0),
    Sketcher.Constraint("Radius", 2, 4.0),
    Sketcher.Constraint("Diameter", 5, 4.2),
    Sketcher.Constraint("DistanceX", 3, 2, 3, 1, 44.5),
    Sketcher.Constraint("DistanceX", -1, 1, 7, 3, 25.0),
    Sketcher.Constraint("DistanceY", 5, 3, 2, 3, 8.0),
    Sketcher.Constraint("DistanceY", -1, 1, 2, 3, 55.5),
    Sketcher.Constraint("Distance", 1, 43.398149),
    Sketcher.Constraint("DistanceY", -1, 1, 7, 3, 24.254422),
])
pocket5 = doc.addObject("PartDesign::Pocket", "Pocket004")
body.addObject(pocket5)
pocket5.Profile = sketch7
pocket5.Type = "ThroughAll"

# Sketch on XY plane
sketch8 = doc.addObject("Sketcher::SketchObject", "Sketch007")
body.addObject(sketch8)
sketch8.AttachmentSupport = (doc.XY_Plane, [""])
sketch8.MapMode = "FlatFace"
sketch8.addGeometry([
    Part.LineSegment(Vector(40.5, 59.7, 0), Vector(40.5, 47.5, 0)),  # 0
    Part.ArcOfCircle(Part.Circle(Vector(44.5, 47.5, 0), Vector(0, 0, 1), 4), math.radians(180), math.radians(270)),  # 1
    Part.LineSegment(Vector(44.5, 43.5, 0), Vector(50, 43.5, 0)),  # 2
    Part.LineSegment(Vector(50, 43.5, 0), Vector(50, 59.7, 0)),  # 3
    Part.LineSegment(Vector(50, 59.7, 0), Vector(40.5, 59.7, 0)),  # 4
], False)
sketch8.addConstraint([
    Sketcher.Constraint("Tangent", 0, 2, 1, 1),
    Sketcher.Constraint("Tangent", 1, 2, 2, 1),
    Sketcher.Constraint("Coincident", 2, 2, 3, 1),
    Sketcher.Constraint("Coincident", 3, 2, 4, 1),
    Sketcher.Constraint("Coincident", 4, 2, 0, 1),
    Sketcher.Constraint("Vertical", 0),
    Sketcher.Constraint("Horizontal", 2),
    Sketcher.Constraint("Vertical", 3),
    Sketcher.Constraint("Horizontal", 4),
    Sketcher.Constraint("Radius", 1, 4.0),
    Sketcher.Constraint("DistanceX", 2, 1, 2, 2, 5.5),
    Sketcher.Constraint("DistanceX", -1, 1, 2, 2, 50.0),
    Sketcher.Constraint("DistanceY", -1, 1, 1, 3, 47.5),
    Sketcher.Constraint("DistanceY", 0, 2, 0, 1, 12.187083),
])
pocket6 = doc.addObject("PartDesign::Pocket", "Pocket005")
body.addObject(pocket6)
pocket6.Profile = sketch8
pocket6.Length = 4

doc.recompute()
